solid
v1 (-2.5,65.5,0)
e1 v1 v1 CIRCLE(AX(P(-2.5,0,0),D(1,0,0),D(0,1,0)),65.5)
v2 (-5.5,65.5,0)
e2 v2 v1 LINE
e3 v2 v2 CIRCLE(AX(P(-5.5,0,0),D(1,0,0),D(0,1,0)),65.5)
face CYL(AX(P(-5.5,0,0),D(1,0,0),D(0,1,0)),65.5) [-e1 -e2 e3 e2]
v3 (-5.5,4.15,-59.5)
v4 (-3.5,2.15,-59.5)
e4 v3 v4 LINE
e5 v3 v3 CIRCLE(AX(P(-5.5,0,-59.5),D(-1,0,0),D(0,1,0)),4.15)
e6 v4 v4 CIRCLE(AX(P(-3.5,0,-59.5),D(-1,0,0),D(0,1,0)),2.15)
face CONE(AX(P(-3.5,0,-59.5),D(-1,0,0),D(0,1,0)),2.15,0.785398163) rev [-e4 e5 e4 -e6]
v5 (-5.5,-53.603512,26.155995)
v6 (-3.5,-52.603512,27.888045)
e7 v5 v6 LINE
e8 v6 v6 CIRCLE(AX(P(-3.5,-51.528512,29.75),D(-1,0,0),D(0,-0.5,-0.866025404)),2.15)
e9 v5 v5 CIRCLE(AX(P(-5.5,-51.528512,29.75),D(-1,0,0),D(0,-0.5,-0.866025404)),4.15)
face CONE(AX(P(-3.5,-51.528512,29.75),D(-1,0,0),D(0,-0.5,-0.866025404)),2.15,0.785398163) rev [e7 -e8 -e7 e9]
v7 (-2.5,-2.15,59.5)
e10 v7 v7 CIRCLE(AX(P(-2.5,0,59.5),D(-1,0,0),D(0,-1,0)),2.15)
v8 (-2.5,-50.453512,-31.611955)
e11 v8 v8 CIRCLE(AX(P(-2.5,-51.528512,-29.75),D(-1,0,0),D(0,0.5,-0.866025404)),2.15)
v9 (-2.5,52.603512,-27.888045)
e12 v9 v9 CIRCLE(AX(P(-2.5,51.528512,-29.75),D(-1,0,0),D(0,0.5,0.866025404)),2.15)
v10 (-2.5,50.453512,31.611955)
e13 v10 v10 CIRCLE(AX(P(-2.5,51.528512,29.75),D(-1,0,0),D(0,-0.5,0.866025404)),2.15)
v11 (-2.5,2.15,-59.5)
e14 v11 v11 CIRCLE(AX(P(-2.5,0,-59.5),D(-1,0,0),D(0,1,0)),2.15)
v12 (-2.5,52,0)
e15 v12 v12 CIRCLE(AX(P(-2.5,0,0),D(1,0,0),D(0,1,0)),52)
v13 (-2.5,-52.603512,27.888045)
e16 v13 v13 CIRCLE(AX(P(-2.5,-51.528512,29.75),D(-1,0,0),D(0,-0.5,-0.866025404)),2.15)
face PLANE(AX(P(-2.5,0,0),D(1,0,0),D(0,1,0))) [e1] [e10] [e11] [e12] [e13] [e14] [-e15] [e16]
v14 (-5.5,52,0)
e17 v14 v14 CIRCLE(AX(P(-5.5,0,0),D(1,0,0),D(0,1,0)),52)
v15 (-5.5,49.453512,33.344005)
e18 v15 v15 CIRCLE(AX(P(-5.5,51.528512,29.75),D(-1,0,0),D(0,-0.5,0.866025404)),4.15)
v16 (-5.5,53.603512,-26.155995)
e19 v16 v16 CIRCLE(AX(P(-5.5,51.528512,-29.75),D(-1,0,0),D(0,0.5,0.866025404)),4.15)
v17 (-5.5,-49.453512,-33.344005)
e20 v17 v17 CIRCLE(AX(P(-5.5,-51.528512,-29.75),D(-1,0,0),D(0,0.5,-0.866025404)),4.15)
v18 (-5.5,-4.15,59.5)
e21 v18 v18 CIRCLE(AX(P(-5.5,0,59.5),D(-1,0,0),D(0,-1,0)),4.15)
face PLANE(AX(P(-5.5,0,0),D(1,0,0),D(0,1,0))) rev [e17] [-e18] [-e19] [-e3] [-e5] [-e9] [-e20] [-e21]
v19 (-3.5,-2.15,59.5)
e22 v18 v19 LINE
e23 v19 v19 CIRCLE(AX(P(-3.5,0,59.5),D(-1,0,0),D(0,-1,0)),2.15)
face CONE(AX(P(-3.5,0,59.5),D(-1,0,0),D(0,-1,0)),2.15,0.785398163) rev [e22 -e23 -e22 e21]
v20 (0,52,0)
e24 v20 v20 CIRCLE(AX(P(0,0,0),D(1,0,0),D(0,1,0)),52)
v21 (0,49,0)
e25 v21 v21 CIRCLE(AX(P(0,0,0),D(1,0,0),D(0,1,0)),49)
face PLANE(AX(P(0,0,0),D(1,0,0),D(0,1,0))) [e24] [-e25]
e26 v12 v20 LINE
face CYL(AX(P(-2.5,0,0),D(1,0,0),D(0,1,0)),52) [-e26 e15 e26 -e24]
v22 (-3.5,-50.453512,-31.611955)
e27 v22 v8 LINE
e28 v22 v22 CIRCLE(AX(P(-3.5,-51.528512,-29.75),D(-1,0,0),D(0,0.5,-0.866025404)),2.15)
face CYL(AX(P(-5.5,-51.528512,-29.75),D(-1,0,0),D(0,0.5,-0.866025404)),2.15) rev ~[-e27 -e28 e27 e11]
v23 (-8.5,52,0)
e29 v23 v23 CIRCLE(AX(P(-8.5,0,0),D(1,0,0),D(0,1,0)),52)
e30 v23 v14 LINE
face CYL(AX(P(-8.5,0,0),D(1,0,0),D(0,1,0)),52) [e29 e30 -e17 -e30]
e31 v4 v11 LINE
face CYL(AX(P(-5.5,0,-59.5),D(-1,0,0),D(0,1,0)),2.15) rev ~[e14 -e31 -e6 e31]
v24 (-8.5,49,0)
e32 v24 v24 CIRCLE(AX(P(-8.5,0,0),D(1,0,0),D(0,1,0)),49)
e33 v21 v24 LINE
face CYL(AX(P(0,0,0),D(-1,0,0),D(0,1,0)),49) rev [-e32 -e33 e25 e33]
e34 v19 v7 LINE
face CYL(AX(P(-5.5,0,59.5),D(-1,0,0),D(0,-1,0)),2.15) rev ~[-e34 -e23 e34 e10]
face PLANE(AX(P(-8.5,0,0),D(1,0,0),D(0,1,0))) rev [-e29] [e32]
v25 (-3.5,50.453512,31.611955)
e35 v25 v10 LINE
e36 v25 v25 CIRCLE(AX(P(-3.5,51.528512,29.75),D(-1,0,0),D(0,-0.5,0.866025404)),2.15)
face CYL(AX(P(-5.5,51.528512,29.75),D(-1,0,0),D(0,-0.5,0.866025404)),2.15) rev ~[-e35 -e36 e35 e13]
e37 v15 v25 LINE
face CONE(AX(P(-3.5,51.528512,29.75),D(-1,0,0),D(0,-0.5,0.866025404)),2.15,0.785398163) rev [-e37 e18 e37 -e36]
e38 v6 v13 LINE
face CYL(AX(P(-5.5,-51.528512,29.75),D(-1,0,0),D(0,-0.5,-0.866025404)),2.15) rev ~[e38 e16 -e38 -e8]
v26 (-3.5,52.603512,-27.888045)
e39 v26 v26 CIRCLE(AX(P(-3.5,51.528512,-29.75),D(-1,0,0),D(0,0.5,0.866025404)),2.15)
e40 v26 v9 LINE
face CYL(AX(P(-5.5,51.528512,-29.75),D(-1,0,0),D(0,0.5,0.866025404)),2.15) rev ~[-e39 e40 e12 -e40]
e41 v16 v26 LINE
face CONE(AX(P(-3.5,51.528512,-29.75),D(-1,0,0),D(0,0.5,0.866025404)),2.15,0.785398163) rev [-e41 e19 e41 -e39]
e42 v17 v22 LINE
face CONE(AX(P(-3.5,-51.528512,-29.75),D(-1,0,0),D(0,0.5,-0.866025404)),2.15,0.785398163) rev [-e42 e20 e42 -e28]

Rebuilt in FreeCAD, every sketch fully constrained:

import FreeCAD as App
import Part
import Sketcher

V = App.Vector


def edges_at(feature, points):
    """Names of the edges that pass closest to the given points."""
    edges = feature.Shape.Edges
    near = lambda p: min(range(len(edges)), key=lambda i: edges[i].distToShape(Part.Vertex(*p))[0])
    return sorted({f"Edge{near(p) + 1}" for p in points})


def add_polygon(sketch, points):
    """Adds a closed chain of lines whose ends are joined by coincident constraints."""
    first, n = sketch.GeometryCount, len(points)
    for a, b in zip(points, points[1:] + points[:1]):
        sketch.addGeometry(Part.LineSegment(App.Vector(*a, 0), App.Vector(*b, 0)), False)
    for i in range(n):
        sketch.addConstraint(Sketcher.Constraint("Coincident", first + i, 2, first + (i + 1) % n, 1))

doc = App.newDocument("Part")
params = doc.addObject("Spreadsheet::Sheet", "Params")
for row, (alias, value) in enumerate([
    ("sketch1_width", "3 mm"),
    ("sketch1_width2", "8.5 mm"),
    ("sketch1_height", "13.5 mm"),
    ("revolution_angle", "360 deg"),
    ("sketch2_diameter", "4.3 mm"),
    ("pocket1_length", "5 mm"),
    ("chamfer_size", "2 mm"),
], start=1):
    params.set(f"A{row}", alias)
    params.set(f"B{row}", "=" + value)
    params.setAlias(f"B{row}", alias)

body = doc.addObject("PartDesign::Body", "Body")

# Sketch on XY plane
sketch1 = doc.addObject("Sketcher::SketchObject", "Sketch")
body.addObject(sketch1)
sketch1.AttachmentSupport = (doc.XY_Plane, [""])
sketch1.MapMode = "FlatFace"
add_polygon(sketch1, [(-5.5, 52), (-8.5, 52), (-8.5, 49), (0, 49), (0, 52), (-2.5, 52), (-2.5, 65.5), (-5.5, 65.5)])  # lines 0-7
sketch1.addConstraint(Sketcher.Constraint("Horizontal", 0))
sketch1.addConstraint(Sketcher.Constraint("Vertical", 1))
sketch1.addConstraint(Sketcher.Constraint("Horizontal", 2))
sketch1.addConstraint(Sketcher.Constraint("Vertical", 3))
sketch1.addConstraint(Sketcher.Constraint("Horizontal", 4))
sketch1.addConstraint(Sketcher.Constraint("Vertical", 5))
sketch1.addConstraint(Sketcher.Constraint("Horizontal", 6))
sketch1.addConstraint(Sketcher.Constraint("Vertical", 7))
sketch1.addConstraint(Sketcher.Constraint("PointOnObject", 2, 2, -2))
sketch1.addConstraint(Sketcher.Constraint("Horizontal", 0, 2, 3, 2))
sketch1.addConstraint(Sketcher.Constraint("Equal", 0, 6))
sketch1.addConstraint(Sketcher.Constraint("Equal", 6, 1))
sketch1.addConstraint(Sketcher.Constraint("DistanceX", 0, 2, 0, 1, 3.0))
sketch1.addConstraint(Sketcher.Constraint("DistanceX", 2, 1, 2, 2, 8.5))
sketch1.addConstraint(Sketcher.Constraint("DistanceY", 5, 1, 5, 2, 13.5))
sketch1.addConstraint(Sketcher.Constraint("DistanceY", -1, 1, 0, 2, 52.0))
sketch1.setExpression("Constraints[20]", "Params.sketch1_width")
sketch1.setExpression("Constraints[21]", "Params.sketch1_width2")
sketch1.setExpression("Constraints[22]", "Params.sketch1_height")
revolution = doc.addObject("PartDesign::Revolution", "Revolution")
body.addObject(revolution)
revolution.Profile = sketch1
revolution.ReferenceAxis = (sketch1, ["H_Axis"])
revolution.setExpression("Angle", "Params.revolution_angle")

# Sketch on YZ plane
sketch2 = doc.addObject("Sketcher::SketchObject", "Sketch001")
body.addObject(sketch2)
sketch2.AttachmentSupport = (doc.YZ_Plane, [""])
sketch2.MapMode = "FlatFace"
sketch2.AttachmentOffset = App.Placement(V(0, 0, -5.5), App.Rotation())
sketch2.addGeometry(Part.Circle(V(0, 59.5, 0), V(0, 0, 1), 2.1), False)
sketch2.addConstraint(Sketcher.Constraint("PointOnObject", 0, 3, -2))
sketch2.addConstraint(Sketcher.Constraint("Diameter", 0, 4.3))
sketch2.addConstraint(Sketcher.Constraint("DistanceY", -1, 1, 0, 3, 59.5))
sketch2.setExpression("Constraints[1]", "Params.sketch2_diameter")
pocket1 = doc.addObject("PartDesign::Pocket", "Pocket")
body.addObject(pocket1)
pocket1.Profile = sketch2
pocket1.setExpression("Length", "Params.pocket1_length")
pocket1.Reversed = True
doc.recompute()

polarpattern = doc.addObject("PartDesign::PolarPattern", "PolarPattern")
body.addObject(polarpattern)
polarpattern.Originals = [pocket1]
polarpattern.Axis = (doc.X_Axis, [""])
polarpattern.Angle = 360
polarpattern.Occurrences = 6
body.Tip = polarpattern
doc.recompute()

chamfer = doc.addObject("PartDesign::Chamfer", "Chamfer")
body.addObject(chamfer)
chamfer.Base = (polarpattern, edges_at(polarpattern, [
    (-5.5, 2.15, 59.5),
    (-5.5, 52.604, 27.888),
    (-5.5, 50.454, -31.612),
    (-5.5, -2.15, -59.5),
    (-5.5, -52.604, -27.888),
    (-5.5, -50.454, 31.612),
]))
chamfer.setExpression("Size", "Params.chamfer_size")

doc.recompute()
